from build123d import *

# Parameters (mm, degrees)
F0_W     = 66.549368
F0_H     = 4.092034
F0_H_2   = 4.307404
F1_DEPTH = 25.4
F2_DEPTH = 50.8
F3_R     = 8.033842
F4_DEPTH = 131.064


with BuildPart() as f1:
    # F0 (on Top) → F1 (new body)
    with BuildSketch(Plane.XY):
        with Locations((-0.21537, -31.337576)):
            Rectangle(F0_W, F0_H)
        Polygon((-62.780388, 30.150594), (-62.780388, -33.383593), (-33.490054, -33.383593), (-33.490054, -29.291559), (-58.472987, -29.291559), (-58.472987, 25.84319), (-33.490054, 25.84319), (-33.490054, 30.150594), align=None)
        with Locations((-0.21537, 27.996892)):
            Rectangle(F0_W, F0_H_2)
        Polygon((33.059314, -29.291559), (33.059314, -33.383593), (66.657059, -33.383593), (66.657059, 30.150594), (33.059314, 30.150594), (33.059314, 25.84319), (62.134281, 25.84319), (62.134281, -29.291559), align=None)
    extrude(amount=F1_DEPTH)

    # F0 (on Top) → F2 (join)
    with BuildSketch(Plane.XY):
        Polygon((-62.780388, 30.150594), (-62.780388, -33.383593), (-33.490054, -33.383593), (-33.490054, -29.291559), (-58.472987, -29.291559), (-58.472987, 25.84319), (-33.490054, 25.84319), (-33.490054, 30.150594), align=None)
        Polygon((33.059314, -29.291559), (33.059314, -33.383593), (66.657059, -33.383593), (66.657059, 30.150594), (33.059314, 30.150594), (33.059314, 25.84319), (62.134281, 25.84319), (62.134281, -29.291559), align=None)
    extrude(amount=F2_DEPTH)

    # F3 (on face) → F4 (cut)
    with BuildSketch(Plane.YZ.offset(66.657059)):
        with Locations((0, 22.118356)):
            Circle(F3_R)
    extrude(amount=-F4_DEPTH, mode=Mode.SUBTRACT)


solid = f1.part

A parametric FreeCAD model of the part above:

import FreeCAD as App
import Part
import Sketcher
Q = App.Units.Quantity

doc = App.newDocument("Part")
body = doc.addObject("PartDesign::Body", "Body")

sketch1 = body.newObject("Sketcher::SketchObject", "Sketch")
sketch1.AttachmentSupport = (doc.getObject("XY_Plane"), [""])
sketch1.MapMode = "FlatFace"
sketch1.addGeometry([
    Part.LineSegment(App.Vector(-62.780388, 30.150594, 0), App.Vector(-62.780388, -33.383593, 0)),
    Part.LineSegment(App.Vector(-62.780388, -33.383593, 0), App.Vector(66.657059, -33.383593, 0)),
    Part.LineSegment(App.Vector(66.657059, -33.383593, 0), App.Vector(66.657059, 30.150594, 0)),
    Part.LineSegment(App.Vector(66.657059, 30.150594, 0), App.Vector(-62.780388, 30.150594, 0)),
    Part.LineSegment(App.Vector(-58.472987, -29.291559, 0), App.Vector(-58.472987, 25.84319, 0)),
    Part.LineSegment(App.Vector(-58.472987, 25.84319, 0), App.Vector(62.134281, 25.84319, 0)),
    Part.LineSegment(App.Vector(62.134281, 25.84319, 0), App.Vector(62.134281, -29.291559, 0)),
    Part.LineSegment(App.Vector(62.134281, -29.291559, 0), App.Vector(-58.472987, -29.291559, 0)),
], False)
sketch1.addConstraint([
    Sketcher.Constraint("Coincident", 0, 2, 1, 1),
    Sketcher.Constraint("Coincident", 1, 2, 2, 1),
    Sketcher.Constraint("Coincident", 2, 2, 3, 1),
    Sketcher.Constraint("Coincident", 3, 2, 0, 1),
    Sketcher.Constraint("Coincident", 4, 2, 5, 1),
    Sketcher.Constraint("Coincident", 5, 2, 6, 1),
    Sketcher.Constraint("Coincident", 6, 2, 7, 1),
    Sketcher.Constraint("Coincident", 7, 2, 4, 1),
    Sketcher.Constraint("Vertical", 0),
    Sketcher.Constraint("Horizontal", 1),
    Sketcher.Constraint("Vertical", 2),
    Sketcher.Constraint("Horizontal", 3),
    Sketcher.Constraint("Vertical", 4),
    Sketcher.Constraint("Horizontal", 5),
    Sketcher.Constraint("Vertical", 6),
    Sketcher.Constraint("Horizontal", 7),
    Sketcher.Constraint("DistanceX", 5, 1, 5, 2, Q("120.607268 mm")),
    Sketcher.Constraint("DistanceY", 4, 1, 4, 2, Q("55.134749 mm")),
    Sketcher.Constraint("DistanceX", 3, 2, 4, 2, Q("4.307401 mm")),
    Sketcher.Constraint("DistanceX", 1, 1, 1, 2, Q("129.437447 mm")),
    Sketcher.Constraint("DistanceY", 0, 2, 0, 1, Q("63.534187 mm")),
    Sketcher.Constraint("DistanceX", 0, 2, -1, 1, Q("62.780388 mm")),
    Sketcher.Constraint("DistanceY", -1, 1, 4, 2, Q("25.84319 mm")),
    Sketcher.Constraint("DistanceY", 0, 2, -1, 1, Q("33.383593 mm")),
])
pad1 = body.newObject("PartDesign::Pad", "Pad")
pad1.Profile = sketch1
pad1.Length = Q("1 in")

sketch2 = body.newObject("Sketcher::SketchObject", "Sketch001")
sketch2.AttachmentSupport = (doc.getObject("XY_Plane"), [""])
sketch2.MapMode = "FlatFace"
sketch2.addGeometry([
    Part.LineSegment(App.Vector(-62.780388, 30.150594, 0), App.Vector(-62.780388, -33.383593, 0)),
    Part.LineSegment(App.Vector(-62.780388, -33.383593, 0), App.Vector(-33.490054, -33.383593, 0)),
    Part.LineSegment(App.Vector(-33.490054, -33.383593, 0), App.Vector(-33.490054, -29.291559, 0)),
    Part.LineSegment(App.Vector(-33.490054, -29.291559, 0), App.Vector(-58.472987, -29.291559, 0)),
    Part.LineSegment(App.Vector(-58.472987, -29.291559, 0), App.Vector(-58.472987, 25.84319, 0)),
    Part.LineSegment(App.Vector(-58.472987, 25.84319, 0), App.Vector(-33.490054, 25.84319, 0)),
    Part.LineSegment(App.Vector(-33.490054, 25.84319, 0), App.Vector(-33.490054, 30.150594, 0)),
    Part.LineSegment(App.Vector(-33.490054, 30.150594, 0), App.Vector(-62.780388, 30.150594, 0)),
    Part.LineSegment(App.Vector(33.059314, -29.291559, 0), App.Vector(33.059314, -33.383593, 0)),
    Part.LineSegment(App.Vector(33.059314, -33.383593, 0), App.Vector(66.657059, -33.383593, 0)),
    Part.LineSegment(App.Vector(66.657059, -33.383593, 0), App.Vector(66.657059, 30.150594, 0)),
    Part.LineSegment(App.Vector(66.657059, 30.150594, 0), App.Vector(33.059314, 30.150594, 0)),
    Part.LineSegment(App.Vector(33.059314, 30.150594, 0), App.Vector(33.059314, 25.84319, 0)),
    Part.LineSegment(App.Vector(33.059314, 25.84319, 0), App.Vector(62.134281, 25.84319, 0)),
    Part.LineSegment(App.Vector(62.134281, 25.84319, 0), App.Vector(62.134281, -29.291559, 0)),
    Part.LineSegment(App.Vector(62.134281, -29.291559, 0), App.Vector(33.059314, -29.291559, 0)),
], False)
sketch2.addConstraint([
    Sketcher.Constraint("Coincident", 0, 2, 1, 1),
    Sketcher.Constraint("Coincident", 1, 2, 2, 1),
    Sketcher.Constraint("Coincident", 2, 2, 3, 1),
    Sketcher.Constraint("Coincident", 3, 2, 4, 1),
    Sketcher.Constraint("Coincident", 4, 2, 5, 1),
    Sketcher.Constraint("Coincident", 5, 2, 6, 1),
    Sketcher.Constraint("Coincident", 6, 2, 7, 1),
    Sketcher.Constraint("Coincident", 7, 2, 0, 1),
    Sketcher.Constraint("Coincident", 8, 2, 9, 1),
    Sketcher.Constraint("Coincident", 9, 2, 10, 1),
    Sketcher.Constraint("Coincident", 10, 2, 11, 1),
    Sketcher.Constraint("Coincident", 11, 2, 12, 1),
    Sketcher.Constraint("Coincident", 12, 2, 13, 1),
    Sketcher.Constraint("Coincident", 13, 2, 14, 1),
    Sketcher.Constraint("Coincident", 14, 2, 15, 1),
    Sketcher.Constraint("Coincident", 15, 2, 8, 1),
    Sketcher.Constraint("Vertical", 0),
    Sketcher.Constraint("Horizontal", 1),
    Sketcher.Constraint("Vertical", 2),
    Sketcher.Constraint("Horizontal", 3),
    Sketcher.Constraint("Vertical", 4),
    Sketcher.Constraint("Horizontal", 5),
    Sketcher.Constraint("Vertical", 6),
    Sketcher.Constraint("Horizontal", 7),
    Sketcher.Constraint("Vertical", 8),
    Sketcher.Constraint("Horizontal", 9),
    Sketcher.Constraint("Vertical", 10),
    Sketcher.Constraint("Horizontal", 11),
    Sketcher.Constraint("Vertical", 12),
    Sketcher.Constraint("Horizontal", 13),
    Sketcher.Constraint("Vertical", 14),
    Sketcher.Constraint("Horizontal", 15),
    Sketcher.Constraint("Horizontal", 1, 2, 8, 2),
    Sketcher.Constraint("Horizontal", 7, 2, 10, 2),
    Sketcher.Constraint("Horizontal", 5, 2, 12, 2),
    Sketcher.Constraint("Horizontal", 3, 2, 14, 2),
    Sketcher.Constraint("Vertical", 2, 2, 5, 2),
    Sketcher.Constraint("Vertical", 8, 2, 11, 2),
    Sketcher.Constraint("DistanceY", 4, 1, 4, 2, Q("55.134749 mm")),
    Sketcher.Constraint("DistanceX", 0, 2, 3, 2, Q("4.307401 mm")),
    Sketcher.Constraint("DistanceX", 3, 2, 8, 2, Q("91.532301 mm")),
    Sketcher.Constraint("DistanceX", 1, 1, 1, 2, Q("29.290334 mm")),
    Sketcher.Constraint("DistanceX", 9, 1, 9, 2, Q("33.597745 mm")),
    Sketcher.Constraint("DistanceX", 13, 1, 13, 2, Q("29.074967 mm")),
    Sketcher.Constraint("DistanceY", 0, 2, 0, 1, Q("63.534187 mm")),
    Sketcher.Constraint("DistanceY", 2, 1, 2, 2, Q("4.092034 mm")),
    Sketcher.Constraint("DistanceX", 0, 2, -1, 1, Q("62.780388 mm")),
    Sketcher.Constraint("DistanceY", 2, 2, -1, 1, Q("29.291559 mm")),
])
pad2 = body.newObject("PartDesign::Pad", "Pad001")
pad2.Profile = sketch2
pad2.Length = Q("2 in")

sketch3 = body.newObject("Sketcher::SketchObject", "Sketch002")
sketch3.AttachmentSupport = (doc.getObject("YZ_Plane"), [""])
sketch3.MapMode = "FlatFace"
sketch3.AttachmentOffset = App.Placement(App.Vector(0, 0, 66.657059), App.Rotation())
sketch3.addGeometry(Part.Circle(App.Vector(0, 22.118356, 0), App.Vector(0, 0, 1), 8.033842), False)
sketch3.addConstraint([
    Sketcher.Constraint("PointOnObject", 0, 3, -2),
    Sketcher.Constraint("Diameter", 0, Q("16.067684 mm")),
    Sketcher.Constraint("DistanceY", -1, 1, 0, 3, Q("22.118356 mm")),
])
pocket1 = body.newObject("PartDesign::Pocket", "Pocket")
pocket1.Profile = sketch3
pocket1.Length = Q("5.16 in")

doc.recompute()
